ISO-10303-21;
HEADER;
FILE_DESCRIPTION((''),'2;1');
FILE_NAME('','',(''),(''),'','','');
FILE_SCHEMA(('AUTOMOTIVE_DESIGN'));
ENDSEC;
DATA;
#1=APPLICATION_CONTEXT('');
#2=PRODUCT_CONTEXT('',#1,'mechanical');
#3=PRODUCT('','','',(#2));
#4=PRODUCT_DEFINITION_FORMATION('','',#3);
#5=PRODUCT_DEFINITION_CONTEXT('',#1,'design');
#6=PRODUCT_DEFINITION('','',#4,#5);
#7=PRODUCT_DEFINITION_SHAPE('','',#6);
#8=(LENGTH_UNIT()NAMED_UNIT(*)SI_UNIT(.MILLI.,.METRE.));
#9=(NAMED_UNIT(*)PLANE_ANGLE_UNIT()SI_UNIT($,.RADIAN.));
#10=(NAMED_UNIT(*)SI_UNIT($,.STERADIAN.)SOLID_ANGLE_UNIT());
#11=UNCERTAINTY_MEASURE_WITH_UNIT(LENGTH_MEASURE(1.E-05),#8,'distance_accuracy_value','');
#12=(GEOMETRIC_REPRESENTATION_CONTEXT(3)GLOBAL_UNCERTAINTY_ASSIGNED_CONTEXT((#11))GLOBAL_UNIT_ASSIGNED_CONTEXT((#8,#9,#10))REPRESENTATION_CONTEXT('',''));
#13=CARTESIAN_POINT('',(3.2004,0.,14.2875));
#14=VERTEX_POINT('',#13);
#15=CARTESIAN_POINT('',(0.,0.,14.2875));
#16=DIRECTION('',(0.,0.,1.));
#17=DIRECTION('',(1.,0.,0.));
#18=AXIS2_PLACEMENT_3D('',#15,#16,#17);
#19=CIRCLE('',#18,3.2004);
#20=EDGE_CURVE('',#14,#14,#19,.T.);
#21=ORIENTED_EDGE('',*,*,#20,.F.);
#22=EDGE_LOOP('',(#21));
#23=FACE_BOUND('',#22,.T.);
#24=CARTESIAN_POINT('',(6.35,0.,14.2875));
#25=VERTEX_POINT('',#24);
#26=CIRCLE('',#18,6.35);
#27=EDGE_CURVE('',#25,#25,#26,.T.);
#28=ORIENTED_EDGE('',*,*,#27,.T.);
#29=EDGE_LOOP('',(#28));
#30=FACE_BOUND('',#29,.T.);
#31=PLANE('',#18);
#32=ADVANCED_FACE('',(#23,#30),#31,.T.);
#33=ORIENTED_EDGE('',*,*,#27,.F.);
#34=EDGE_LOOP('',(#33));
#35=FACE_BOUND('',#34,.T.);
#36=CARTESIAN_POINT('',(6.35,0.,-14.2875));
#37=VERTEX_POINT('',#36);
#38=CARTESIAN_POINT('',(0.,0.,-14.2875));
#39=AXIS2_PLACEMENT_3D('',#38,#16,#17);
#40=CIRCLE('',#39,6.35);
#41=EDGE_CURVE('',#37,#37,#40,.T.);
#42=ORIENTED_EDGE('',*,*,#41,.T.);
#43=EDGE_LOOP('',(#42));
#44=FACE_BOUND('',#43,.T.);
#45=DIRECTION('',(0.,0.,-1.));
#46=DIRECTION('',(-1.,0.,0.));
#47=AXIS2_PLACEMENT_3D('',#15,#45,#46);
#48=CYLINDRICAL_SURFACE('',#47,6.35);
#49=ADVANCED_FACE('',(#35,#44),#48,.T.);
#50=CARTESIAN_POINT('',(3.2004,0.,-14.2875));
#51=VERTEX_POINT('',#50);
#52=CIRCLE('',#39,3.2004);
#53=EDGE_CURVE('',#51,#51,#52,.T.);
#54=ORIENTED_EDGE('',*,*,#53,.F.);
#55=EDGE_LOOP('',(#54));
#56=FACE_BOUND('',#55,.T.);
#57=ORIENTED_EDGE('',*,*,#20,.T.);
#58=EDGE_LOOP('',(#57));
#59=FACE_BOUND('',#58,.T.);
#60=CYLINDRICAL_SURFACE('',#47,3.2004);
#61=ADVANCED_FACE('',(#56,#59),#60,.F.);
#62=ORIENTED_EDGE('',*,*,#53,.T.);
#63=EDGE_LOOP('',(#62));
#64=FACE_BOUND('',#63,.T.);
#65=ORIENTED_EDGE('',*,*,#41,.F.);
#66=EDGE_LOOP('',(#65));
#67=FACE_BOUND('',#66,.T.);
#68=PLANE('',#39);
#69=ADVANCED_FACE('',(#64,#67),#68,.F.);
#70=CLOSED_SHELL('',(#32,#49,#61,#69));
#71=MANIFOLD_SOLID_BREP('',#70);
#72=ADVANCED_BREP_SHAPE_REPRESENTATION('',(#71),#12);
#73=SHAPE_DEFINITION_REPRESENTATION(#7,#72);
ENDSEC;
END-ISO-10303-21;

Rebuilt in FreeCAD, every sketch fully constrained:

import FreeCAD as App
import Part
import Sketcher
Q = App.Units.Quantity

doc = App.newDocument("Part")
params = doc.addObject("Spreadsheet::Sheet", "Params")
for row, (alias, value) in enumerate([
    ("sketch1_diameter", "0.5 in"),
    ("sketch1_diameter2", "0.252 in"),
    ("pad1_length", "1.125 in"),
], start=1):
    params.set(f"A{row}", alias)
    params.set(f"B{row}", "=" + value)
    params.setAlias(f"B{row}", alias)

body = doc.addObject("PartDesign::Body", "Body")

sketch1 = body.newObject("Sketcher::SketchObject", "Sketch")
sketch1.AttachmentSupport = (doc.getObject("XY_Plane"), [""])
sketch1.MapMode = "FlatFace"
sketch1.addGeometry([
    Part.Circle(App.Vector(0, 0, 0), App.Vector(0, 0, 1), 6.35),
    Part.Circle(App.Vector(0, 0, 0), App.Vector(0, 0, 1), 3.2004),
], False)
sketch1.addConstraint([
    Sketcher.Constraint("Coincident", 0, 3, -1, 1),
    Sketcher.Constraint("Coincident", 1, 3, -1, 1),
    Sketcher.Constraint("Diameter", 0, Q("0.5 in")),
    Sketcher.Constraint("Diameter", 1, Q("0.252 in")),
])
sketch1.setExpression("Constraints[2]", "Params.sketch1_diameter")
sketch1.setExpression("Constraints[3]", "Params.sketch1_diameter2")
pad1 = body.newObject("PartDesign::Pad", "Pad")
pad1.Profile = sketch1
pad1.setExpression("Length", "Params.pad1_length")
pad1.Midplane = True

doc.recompute()
